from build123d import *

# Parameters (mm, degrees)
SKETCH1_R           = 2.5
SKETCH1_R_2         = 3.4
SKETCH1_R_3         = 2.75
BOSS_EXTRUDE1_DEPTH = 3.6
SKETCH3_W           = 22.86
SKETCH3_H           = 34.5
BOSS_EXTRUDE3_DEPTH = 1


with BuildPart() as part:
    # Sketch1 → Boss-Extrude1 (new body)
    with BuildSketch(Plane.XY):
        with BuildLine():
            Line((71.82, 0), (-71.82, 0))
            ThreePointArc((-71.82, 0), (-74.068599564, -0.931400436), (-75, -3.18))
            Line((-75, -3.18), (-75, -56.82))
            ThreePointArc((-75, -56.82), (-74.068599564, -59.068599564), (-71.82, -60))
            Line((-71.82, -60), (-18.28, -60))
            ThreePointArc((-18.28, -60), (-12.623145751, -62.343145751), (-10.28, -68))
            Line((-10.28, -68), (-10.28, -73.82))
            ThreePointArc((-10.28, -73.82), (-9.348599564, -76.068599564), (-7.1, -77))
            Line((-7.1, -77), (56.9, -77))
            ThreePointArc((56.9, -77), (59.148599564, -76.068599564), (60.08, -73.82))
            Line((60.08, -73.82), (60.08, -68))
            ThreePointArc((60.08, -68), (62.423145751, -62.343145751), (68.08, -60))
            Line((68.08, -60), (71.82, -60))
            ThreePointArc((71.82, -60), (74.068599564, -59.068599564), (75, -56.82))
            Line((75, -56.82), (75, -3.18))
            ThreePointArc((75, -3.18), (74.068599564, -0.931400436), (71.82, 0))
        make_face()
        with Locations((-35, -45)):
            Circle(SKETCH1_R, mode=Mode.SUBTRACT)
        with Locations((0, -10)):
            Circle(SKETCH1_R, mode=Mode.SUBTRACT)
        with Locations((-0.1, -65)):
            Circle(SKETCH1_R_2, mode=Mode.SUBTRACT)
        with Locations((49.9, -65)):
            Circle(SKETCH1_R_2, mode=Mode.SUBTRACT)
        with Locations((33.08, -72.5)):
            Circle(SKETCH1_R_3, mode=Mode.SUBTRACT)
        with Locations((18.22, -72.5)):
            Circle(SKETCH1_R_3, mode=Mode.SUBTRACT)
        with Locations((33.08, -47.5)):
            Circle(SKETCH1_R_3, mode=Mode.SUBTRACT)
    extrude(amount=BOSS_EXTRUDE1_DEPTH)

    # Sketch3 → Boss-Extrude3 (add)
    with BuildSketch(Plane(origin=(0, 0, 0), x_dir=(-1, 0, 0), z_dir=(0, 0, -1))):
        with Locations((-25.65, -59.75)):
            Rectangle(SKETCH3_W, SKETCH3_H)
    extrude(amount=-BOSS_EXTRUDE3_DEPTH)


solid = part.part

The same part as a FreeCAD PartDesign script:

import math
import FreeCAD as App
import Part
import Sketcher
Q = App.Units.Quantity

doc = App.newDocument("Part")
body = doc.addObject("PartDesign::Body", "Body")

# Sketch on XY plane
sketch1 = body.newObject("Sketcher::SketchObject", "Sketch")
sketch1.AttachmentSupport = (doc.getObject("XY_Plane"), [""])
sketch1.MapMode = "FlatFace"
sketch1.addGeometry([
    Part.LineSegment(App.Vector(71.8, 0, 0), App.Vector(-71.8, 0, 0)),  # 0
    Part.ArcOfCircle(Part.Circle(App.Vector(-71.8, -3.2, 0), App.Vector(0, 0, 1), 3.2), math.radians(90), math.radians(180)),  # 1
    Part.LineSegment(App.Vector(-75, -3.2, 0), App.Vector(-75, -56.8, 0)),  # 2
    Part.ArcOfCircle(Part.Circle(App.Vector(-71.8, -56.8, 0), App.Vector(0, 0, 1), 3.2), math.radians(-180), math.radians(-90)),  # 3
    Part.LineSegment(App.Vector(-71.8, -60, 0), App.Vector(-18.3, -60, 0)),  # 4
    Part.ArcOfCircle(Part.Circle(App.Vector(-18.3, -68, 0), App.Vector(0, 0, 1), 8), math.radians(0), math.radians(90)),  # 5
    Part.LineSegment(App.Vector(-10.3, -68, 0), App.Vector(-10.3, -73.8, 0)),  # 6
    Part.ArcOfCircle(Part.Circle(App.Vector(-7.1, -73.8, 0), App.Vector(0, 0, 1), 3.2), math.radians(-180), math.radians(-90)),  # 7
    Part.LineSegment(App.Vector(-7.1, -77, 0), App.Vector(56.9, -77, 0)),  # 8
    Part.ArcOfCircle(Part.Circle(App.Vector(56.9, -73.8, 0), App.Vector(0, 0, 1), 3.2), math.radians(-90), math.radians(0)),  # 9
    Part.LineSegment(App.Vector(60.1, -73.8, 0), App.Vector(60.1, -68, 0)),  # 10
    Part.ArcOfCircle(Part.Circle(App.Vector(68.1, -68, 0), App.Vector(0, 0, 1), 8), math.radians(90), math.radians(180)),  # 11
    Part.LineSegment(App.Vector(68.1, -60, 0), App.Vector(71.8, -60, 0)),  # 12
    Part.ArcOfCircle(Part.Circle(App.Vector(71.8, -56.8, 0), App.Vector(0, 0, 1), 3.2), math.radians(-90), math.radians(0)),  # 13
    Part.LineSegment(App.Vector(75, -56.8, 0), App.Vector(75, -3.2, 0)),  # 14
    Part.ArcOfCircle(Part.Circle(App.Vector(71.8, -3.2, 0), App.Vector(0, 0, 1), 3.2), math.radians(0), math.radians(90)),  # 15
    Part.Circle(App.Vector(-0.1, -65, 0), App.Vector(0, 0, 1), 3.4),  # 16
    Part.Circle(App.Vector(-35, -45, 0), App.Vector(0, 0, 1), 2.5),  # 17
    Part.Circle(App.Vector(18.2, -72.5, 0), App.Vector(0, 0, 1), 2.8),  # 18
    Part.Circle(App.Vector(33.1, -72.5, 0), App.Vector(0, 0, 1), 2.8),  # 19
    Part.Circle(App.Vector(49.9, -65, 0), App.Vector(0, 0, 1), 3.4),  # 20
    Part.Circle(App.Vector(33.1, -47.5, 0), App.Vector(0, 0, 1), 2.8),  # 21
    Part.Circle(App.Vector(0, -10, 0), App.Vector(0, 0, 1), 2.5),  # 22
], False)
sketch1.addConstraint([
    Sketcher.Constraint("Tangent", 0, 2, 1, 1),
    Sketcher.Constraint("Tangent", 1, 2, 2, 1),
    Sketcher.Constraint("Tangent", 2, 2, 3, 1),
    Sketcher.Constraint("Tangent", 3, 2, 4, 1),
    Sketcher.Constraint("Tangent", 4, 2, 5, 2),
    Sketcher.Constraint("Tangent", 5, 1, 6, 1),
    Sketcher.Constraint("Tangent", 6, 2, 7, 1),
    Sketcher.Constraint("Tangent", 7, 2, 8, 1),
    Sketcher.Constraint("Tangent", 8, 2, 9, 1),
    Sketcher.Constraint("Tangent", 9, 2, 10, 1),
    Sketcher.Constraint("Tangent", 10, 2, 11, 2),
    Sketcher.Constraint("Tangent", 11, 1, 12, 1),
    Sketcher.Constraint("Tangent", 12, 2, 13, 1),
    Sketcher.Constraint("Tangent", 13, 2, 14, 1),
    Sketcher.Constraint("Tangent", 14, 2, 15, 1),
    Sketcher.Constraint("Tangent", 15, 2, 0, 1),
    Sketcher.Constraint("Horizontal", 0),
    Sketcher.Constraint("Vertical", 2),
    Sketcher.Constraint("Horizontal", 4),
    Sketcher.Constraint("Vertical", 6),
    Sketcher.Constraint("Horizontal", 8),
    Sketcher.Constraint("Vertical", 10),
    Sketcher.Constraint("Horizontal", 12),
    Sketcher.Constraint("Vertical", 14),
    Sketcher.Constraint("Equal", 1, 3),
    Sketcher.Constraint("Equal", 3, 7),
    Sketcher.Constraint("Equal", 7, 9),
    Sketcher.Constraint("Equal", 5, 11),
    Sketcher.Constraint("Equal", 9, 13),
    Sketcher.Constraint("Equal", 13, 15),
    Sketcher.Constraint("Equal", 18, 19),
    Sketcher.Constraint("Equal", 16, 20),
    Sketcher.Constraint("Equal", 19, 21),
    Sketcher.Constraint("Equal", 17, 22),
    Sketcher.Constraint("Symmetric", 0, 2, 15, 2, -1, 1),
    Sketcher.Constraint("PointOnObject", 22, 3, -2),
    Sketcher.Constraint("Horizontal", 5, 3, 11, 3),
    Sketcher.Constraint("Horizontal", 18, 3, 19, 3),
    Sketcher.Constraint("Horizontal", 16, 3, 20, 3),
    Sketcher.Constraint("Vertical", 19, 3, 21, 3),
    Sketcher.Constraint("Diameter", 17, Q("5 mm")),
    Sketcher.Constraint("Radius", 5, Q("8 mm")),
    Sketcher.Constraint("Diameter", 16, Q("6.8 mm")),
    Sketcher.Constraint("Diameter", 18, Q("5.5 mm")),
    Sketcher.Constraint("DistanceX", 8, 1, 8, 2, Q("64 mm")),
    Sketcher.Constraint("Radius", 1, Q("3.18 mm")),
    Sketcher.Constraint("DistanceY", 5, 3, -1, 1, Q("68 mm")),
    Sketcher.Constraint("DistanceY", 16, 3, -1, 1, Q("65 mm")),
    Sketcher.Constraint("DistanceX", 17, 3, -1, 1, Q("35 mm")),
    Sketcher.Constraint("DistanceY", 17, 3, -1, 1, Q("45 mm")),
    Sketcher.Constraint("DistanceY", 22, 3, -1, 1, Q("10 mm")),
    Sketcher.Constraint("DistanceX", 1, 2, -1, 1, Q("75 mm")),
    Sketcher.Constraint("DistanceY", 7, 2, -1, 1, Q("77 mm")),
    Sketcher.Constraint("DistanceX", 7, 3, 16, 3, Q("7 mm")),
    Sketcher.Constraint("DistanceX", 19, 3, 11, 3, Q("35 mm")),
    Sketcher.Constraint("DistanceX", 20, 3, 9, 3, Q("7 mm")),
    Sketcher.Constraint("DistanceY", 19, 3, 21, 3, Q("25 mm")),
    Sketcher.Constraint("DistanceX", 4, 1, 4, 2, Q("53.54 mm")),
    Sketcher.Constraint("DistanceY", 18, 3, -1, 1, Q("72.5 mm")),
    Sketcher.Constraint("DistanceX", 5, 3, 18, 3, Q("36.5 mm")),
])
pad1 = body.newObject("PartDesign::Pad", "Pad")
pad1.Profile = sketch1
pad1.Length = 3.6

# Sketch on XY plane
sketch2 = body.newObject("Sketcher::SketchObject", "Sketch001")
sketch2.AttachmentSupport = (doc.getObject("XY_Plane"), [""])
sketch2.MapMode = "FlatFace"
sketch2.addGeometry([
    Part.LineSegment(App.Vector(37, -42, 0), App.Vector(37, -77, 0)),
    Part.LineSegment(App.Vector(37, -77, 0), App.Vector(14, -77, 0)),
    Part.LineSegment(App.Vector(14, -77, 0), App.Vector(14, -42, 0)),
    Part.LineSegment(App.Vector(14, -42, 0), App.Vector(37, -42, 0)),
], False)
sketch2.addConstraint([
    Sketcher.Constraint("Coincident", 0, 2, 1, 1),
    Sketcher.Constraint("Coincident", 1, 2, 2, 1),
    Sketcher.Constraint("Coincident", 2, 2, 3, 1),
    Sketcher.Constraint("Coincident", 3, 2, 0, 1),
    Sketcher.Constraint("Vertical", 0),
    Sketcher.Constraint("Horizontal", 1),
    Sketcher.Constraint("Vertical", 2),
    Sketcher.Constraint("Horizontal", 3),
    Sketcher.Constraint("DistanceY", 0, 2, 0, 1, Q("34.5 mm")),
    Sketcher.Constraint("DistanceY", 0, 2, -1, 1, Q("77 mm")),
    Sketcher.Constraint("DistanceX", 1, 2, 1, 1, Q("22.86 mm")),
    Sketcher.Constraint("DistanceX", -1, 1, 0, 2, Q("37.08 mm")),
])
pad2 = body.newObject("PartDesign::Pad", "Pad001")
pad2.Profile = sketch2
pad2.Length = 1

doc.recompute()
